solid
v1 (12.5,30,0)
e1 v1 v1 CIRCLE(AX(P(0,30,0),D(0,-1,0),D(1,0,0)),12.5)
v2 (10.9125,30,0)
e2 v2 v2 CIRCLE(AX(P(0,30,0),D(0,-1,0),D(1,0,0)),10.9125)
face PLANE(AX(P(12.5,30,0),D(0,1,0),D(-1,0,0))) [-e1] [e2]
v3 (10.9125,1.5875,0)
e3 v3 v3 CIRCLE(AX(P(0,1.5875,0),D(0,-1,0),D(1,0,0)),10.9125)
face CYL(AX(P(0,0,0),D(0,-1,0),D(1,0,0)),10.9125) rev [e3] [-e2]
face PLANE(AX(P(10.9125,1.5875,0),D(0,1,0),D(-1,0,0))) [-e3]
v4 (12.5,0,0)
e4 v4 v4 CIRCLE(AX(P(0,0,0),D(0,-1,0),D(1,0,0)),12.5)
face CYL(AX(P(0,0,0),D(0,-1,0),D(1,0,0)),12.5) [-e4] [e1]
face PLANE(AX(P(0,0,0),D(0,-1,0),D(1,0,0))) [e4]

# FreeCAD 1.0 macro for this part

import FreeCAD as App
import Part
import Sketcher
from FreeCAD import Vector
Q = App.Units.Quantity

doc = App.newDocument("Part")
body = doc.addObject("PartDesign::Body", "Body")

# Sketch on XY plane
sketch1 = body.newObject("Sketcher::SketchObject", "Sketch")
sketch1.AttachmentSupport = (doc.getObject("XY_Plane"), [""])
sketch1.MapMode = "FlatFace"
sketch1.addGeometry(Part.LineSegment(Vector(12.5, 30, 0), Vector(10.9, 30, 0)), False)
sketch1.addGeometry(Part.LineSegment(Vector(10.9, 30, 0), Vector(10.9, 1.6, 0)), False)
sketch1.addGeometry(Part.LineSegment(Vector(10.9, 1.6, 0), Vector(0, 1.6, 0)), False)
sketch1.addGeometry(Part.LineSegment(Vector(0, 1.6, 0), Vector(0, 0, 0)), False)
sketch1.addGeometry(Part.LineSegment(Vector(0, 0, 0), Vector(12.5, 0, 0)), False)
sketch1.addGeometry(Part.LineSegment(Vector(12.5, 0, 0), Vector(12.5, 30, 0)), False)
sketch1.addConstraint(Sketcher.Constraint("Coincident", 0, 2, 1, 1))
sketch1.addConstraint(Sketcher.Constraint("Coincident", 1, 2, 2, 1))
sketch1.addConstraint(Sketcher.Constraint("Coincident", 2, 2, 3, 1))
sketch1.addConstraint(Sketcher.Constraint("Coincident", 3, 2, 4, 1))
sketch1.addConstraint(Sketcher.Constraint("Coincident", 4, 2, 5, 1))
sketch1.addConstraint(Sketcher.Constraint("Coincident", 5, 2, 0, 1))
sketch1.addConstraint(Sketcher.Constraint("Horizontal", 0))
sketch1.addConstraint(Sketcher.Constraint("Vertical", 1))
sketch1.addConstraint(Sketcher.Constraint("Horizontal", 2))
sketch1.addConstraint(Sketcher.Constraint("Vertical", 3))
sketch1.addConstraint(Sketcher.Constraint("Horizontal", 4))
sketch1.addConstraint(Sketcher.Constraint("Vertical", 5))
sketch1.addConstraint(Sketcher.Constraint("Coincident", 3, 2, -1, 1))
sketch1.addConstraint(Sketcher.Constraint("Equal", 0, 3))
sketch1.addConstraint(Sketcher.Constraint("DistanceY", 5, 1, 5, 2, Q("30 mm")))
sketch1.addConstraint(Sketcher.Constraint("DistanceX", 4, 1, 4, 2, Q("12.5 mm")))
sketch1.addConstraint(Sketcher.Constraint("DistanceX", 0, 2, 0, 1, Q("1.5875 mm")))
revolution = body.newObject("PartDesign::Revolution", "Revolution")
revolution.Profile = sketch1
revolution.ReferenceAxis = (sketch1, ["V_Axis"])
revolution.Angle = 360

doc.recompute()
